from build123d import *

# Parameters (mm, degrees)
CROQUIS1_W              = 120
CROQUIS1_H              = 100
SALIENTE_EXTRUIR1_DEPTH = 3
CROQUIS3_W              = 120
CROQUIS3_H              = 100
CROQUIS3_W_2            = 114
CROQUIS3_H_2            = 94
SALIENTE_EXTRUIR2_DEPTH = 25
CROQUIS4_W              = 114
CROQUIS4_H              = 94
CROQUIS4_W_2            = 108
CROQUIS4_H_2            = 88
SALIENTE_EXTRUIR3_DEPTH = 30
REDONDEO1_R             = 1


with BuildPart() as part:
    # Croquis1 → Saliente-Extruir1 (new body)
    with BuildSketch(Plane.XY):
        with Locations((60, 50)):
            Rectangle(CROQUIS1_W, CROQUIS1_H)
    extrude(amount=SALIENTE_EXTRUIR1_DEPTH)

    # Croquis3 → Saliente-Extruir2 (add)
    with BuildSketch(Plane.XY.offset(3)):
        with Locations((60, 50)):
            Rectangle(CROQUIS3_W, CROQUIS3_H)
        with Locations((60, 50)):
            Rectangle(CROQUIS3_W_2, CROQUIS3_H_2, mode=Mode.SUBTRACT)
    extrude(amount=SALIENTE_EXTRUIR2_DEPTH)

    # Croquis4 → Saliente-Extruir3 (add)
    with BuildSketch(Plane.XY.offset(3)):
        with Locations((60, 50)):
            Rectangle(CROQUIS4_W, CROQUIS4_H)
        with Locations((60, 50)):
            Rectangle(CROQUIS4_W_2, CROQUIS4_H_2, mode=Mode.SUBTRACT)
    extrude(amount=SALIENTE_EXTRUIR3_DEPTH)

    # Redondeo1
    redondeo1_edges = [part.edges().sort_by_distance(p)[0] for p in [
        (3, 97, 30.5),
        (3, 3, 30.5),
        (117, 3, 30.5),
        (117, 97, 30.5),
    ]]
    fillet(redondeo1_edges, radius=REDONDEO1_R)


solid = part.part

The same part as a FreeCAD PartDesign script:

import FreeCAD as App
import Part
import Sketcher
from FreeCAD import Vector
Q = App.Units.Quantity


def edges_at(feature, points):
    """Names of the edges that pass closest to the given points."""
    edges = feature.Shape.Edges
    near = lambda p: min(range(len(edges)), key=lambda i: edges[i].distToShape(Part.Vertex(*p))[0])
    return sorted({f"Edge{near(p) + 1}" for p in points})


def add_polygon(sketch, points):
    """Adds a closed chain of lines whose ends are joined by coincident constraints."""
    first, n = sketch.GeometryCount, len(points)
    for a, b in zip(points, points[1:] + points[:1]):
        sketch.addGeometry(Part.LineSegment(App.Vector(*a, 0), App.Vector(*b, 0)), False)
    for i in range(n):
        sketch.addConstraint(Sketcher.Constraint("Coincident", first + i, 2, first + (i + 1) % n, 1))

doc = App.newDocument("Part")
body = doc.addObject("PartDesign::Body", "Body")

sketch1 = doc.addObject("Sketcher::SketchObject", "Sketch")
body.addObject(sketch1)
sketch1.AttachmentSupport = (doc.XY_Plane, [""])
sketch1.MapMode = "FlatFace"
add_polygon(sketch1, [(0, 100), (0, 0), (120, 0), (120, 100)])
sketch1.addConstraint([
    Sketcher.Constraint("Vertical", 0),
    Sketcher.Constraint("Horizontal", 1),
    Sketcher.Constraint("Vertical", 2),
    Sketcher.Constraint("Horizontal", 3),
    Sketcher.Constraint("Coincident", 0, 2, -1, 1),
    Sketcher.Constraint("DistanceX", 1, 1, 1, 2, Q("120 mm")),
    Sketcher.Constraint("DistanceY", 0, 2, 0, 1, Q("100 mm")),
])
pad1 = doc.addObject("PartDesign::Pad", "Pad")
body.addObject(pad1)
pad1.Profile = sketch1
pad1.Length = 3

sketch2 = doc.addObject("Sketcher::SketchObject", "Sketch001")
body.addObject(sketch2)
sketch2.AttachmentSupport = (doc.XY_Plane, [""])
sketch2.MapMode = "FlatFace"
sketch2.AttachmentOffset = App.Placement(Vector(0, 0, 3), App.Rotation())
add_polygon(sketch2, [(0, 100), (0, 0), (120, 0), (120, 100)])
add_polygon(sketch2, [(117, 3), (3, 3), (3, 97), (117, 97)])
sketch2.addConstraint([
    Sketcher.Constraint("Vertical", 0),
    Sketcher.Constraint("Horizontal", 1),
    Sketcher.Constraint("Vertical", 2),
    Sketcher.Constraint("Horizontal", 3),
    Sketcher.Constraint("Horizontal", 4),
    Sketcher.Constraint("Vertical", 5),
    Sketcher.Constraint("Horizontal", 6),
    Sketcher.Constraint("Vertical", 7),
    Sketcher.Constraint("Coincident", 0, 2, -1, 1),
    Sketcher.Constraint("DistanceX", 1, 1, 1, 2, Q("120 mm")),
    Sketcher.Constraint("DistanceX", 4, 2, 4, 1, Q("114 mm")),
    Sketcher.Constraint("DistanceY", 0, 2, 0, 1, Q("100 mm")),
    Sketcher.Constraint("DistanceY", 5, 1, 5, 2, Q("94 mm")),
    Sketcher.Constraint("DistanceX", -1, 1, 4, 2, Q("3 mm")),
    Sketcher.Constraint("DistanceY", -1, 1, 4, 2, Q("3 mm")),
])
pad2 = doc.addObject("PartDesign::Pad", "Pad001")
body.addObject(pad2)
pad2.Profile = sketch2
pad2.Length = 25

sketch3 = doc.addObject("Sketcher::SketchObject", "Sketch002")
body.addObject(sketch3)
sketch3.AttachmentSupport = (doc.XY_Plane, [""])
sketch3.MapMode = "FlatFace"
sketch3.AttachmentOffset = App.Placement(Vector(0, 0, 3), App.Rotation())
add_polygon(sketch3, [(3, 97), (3, 3), (117, 3), (117, 97)])
add_polygon(sketch3, [(114, 6), (6, 6), (6, 94), (114, 94)])
sketch3.addConstraint([
    Sketcher.Constraint("Vertical", 0),
    Sketcher.Constraint("Horizontal", 1),
    Sketcher.Constraint("Vertical", 2),
    Sketcher.Constraint("Horizontal", 3),
    Sketcher.Constraint("Horizontal", 4),
    Sketcher.Constraint("Vertical", 5),
    Sketcher.Constraint("Horizontal", 6),
    Sketcher.Constraint("Vertical", 7),
    Sketcher.Constraint("DistanceX", 1, 1, 1, 2, Q("114 mm")),
    Sketcher.Constraint("DistanceX", 4, 2, 4, 1, Q("108 mm")),
    Sketcher.Constraint("DistanceY", 0, 2, 0, 1, Q("94 mm")),
    Sketcher.Constraint("DistanceY", 5, 1, 5, 2, Q("88 mm")),
    Sketcher.Constraint("DistanceX", -1, 1, 0, 2, Q("3 mm")),
    Sketcher.Constraint("DistanceY", -1, 1, 0, 2, Q("3 mm")),
    Sketcher.Constraint("DistanceX", -1, 1, 4, 2, Q("6 mm")),
    Sketcher.Constraint("DistanceY", -1, 1, 4, 2, Q("6 mm")),
])
pad3 = doc.addObject("PartDesign::Pad", "Pad002")
body.addObject(pad3)
pad3.Profile = sketch3
pad3.Length = 30
doc.recompute()

fillet = doc.addObject("PartDesign::Fillet", "Fillet")
body.addObject(fillet)
fillet.Base = (pad3, edges_at(pad3, [
    (3, 97, 30.5),
    (3, 3, 30.5),
    (117, 3, 30.5),
    (117, 97, 30.5),
]))
fillet.Radius = 1

doc.recompute()
